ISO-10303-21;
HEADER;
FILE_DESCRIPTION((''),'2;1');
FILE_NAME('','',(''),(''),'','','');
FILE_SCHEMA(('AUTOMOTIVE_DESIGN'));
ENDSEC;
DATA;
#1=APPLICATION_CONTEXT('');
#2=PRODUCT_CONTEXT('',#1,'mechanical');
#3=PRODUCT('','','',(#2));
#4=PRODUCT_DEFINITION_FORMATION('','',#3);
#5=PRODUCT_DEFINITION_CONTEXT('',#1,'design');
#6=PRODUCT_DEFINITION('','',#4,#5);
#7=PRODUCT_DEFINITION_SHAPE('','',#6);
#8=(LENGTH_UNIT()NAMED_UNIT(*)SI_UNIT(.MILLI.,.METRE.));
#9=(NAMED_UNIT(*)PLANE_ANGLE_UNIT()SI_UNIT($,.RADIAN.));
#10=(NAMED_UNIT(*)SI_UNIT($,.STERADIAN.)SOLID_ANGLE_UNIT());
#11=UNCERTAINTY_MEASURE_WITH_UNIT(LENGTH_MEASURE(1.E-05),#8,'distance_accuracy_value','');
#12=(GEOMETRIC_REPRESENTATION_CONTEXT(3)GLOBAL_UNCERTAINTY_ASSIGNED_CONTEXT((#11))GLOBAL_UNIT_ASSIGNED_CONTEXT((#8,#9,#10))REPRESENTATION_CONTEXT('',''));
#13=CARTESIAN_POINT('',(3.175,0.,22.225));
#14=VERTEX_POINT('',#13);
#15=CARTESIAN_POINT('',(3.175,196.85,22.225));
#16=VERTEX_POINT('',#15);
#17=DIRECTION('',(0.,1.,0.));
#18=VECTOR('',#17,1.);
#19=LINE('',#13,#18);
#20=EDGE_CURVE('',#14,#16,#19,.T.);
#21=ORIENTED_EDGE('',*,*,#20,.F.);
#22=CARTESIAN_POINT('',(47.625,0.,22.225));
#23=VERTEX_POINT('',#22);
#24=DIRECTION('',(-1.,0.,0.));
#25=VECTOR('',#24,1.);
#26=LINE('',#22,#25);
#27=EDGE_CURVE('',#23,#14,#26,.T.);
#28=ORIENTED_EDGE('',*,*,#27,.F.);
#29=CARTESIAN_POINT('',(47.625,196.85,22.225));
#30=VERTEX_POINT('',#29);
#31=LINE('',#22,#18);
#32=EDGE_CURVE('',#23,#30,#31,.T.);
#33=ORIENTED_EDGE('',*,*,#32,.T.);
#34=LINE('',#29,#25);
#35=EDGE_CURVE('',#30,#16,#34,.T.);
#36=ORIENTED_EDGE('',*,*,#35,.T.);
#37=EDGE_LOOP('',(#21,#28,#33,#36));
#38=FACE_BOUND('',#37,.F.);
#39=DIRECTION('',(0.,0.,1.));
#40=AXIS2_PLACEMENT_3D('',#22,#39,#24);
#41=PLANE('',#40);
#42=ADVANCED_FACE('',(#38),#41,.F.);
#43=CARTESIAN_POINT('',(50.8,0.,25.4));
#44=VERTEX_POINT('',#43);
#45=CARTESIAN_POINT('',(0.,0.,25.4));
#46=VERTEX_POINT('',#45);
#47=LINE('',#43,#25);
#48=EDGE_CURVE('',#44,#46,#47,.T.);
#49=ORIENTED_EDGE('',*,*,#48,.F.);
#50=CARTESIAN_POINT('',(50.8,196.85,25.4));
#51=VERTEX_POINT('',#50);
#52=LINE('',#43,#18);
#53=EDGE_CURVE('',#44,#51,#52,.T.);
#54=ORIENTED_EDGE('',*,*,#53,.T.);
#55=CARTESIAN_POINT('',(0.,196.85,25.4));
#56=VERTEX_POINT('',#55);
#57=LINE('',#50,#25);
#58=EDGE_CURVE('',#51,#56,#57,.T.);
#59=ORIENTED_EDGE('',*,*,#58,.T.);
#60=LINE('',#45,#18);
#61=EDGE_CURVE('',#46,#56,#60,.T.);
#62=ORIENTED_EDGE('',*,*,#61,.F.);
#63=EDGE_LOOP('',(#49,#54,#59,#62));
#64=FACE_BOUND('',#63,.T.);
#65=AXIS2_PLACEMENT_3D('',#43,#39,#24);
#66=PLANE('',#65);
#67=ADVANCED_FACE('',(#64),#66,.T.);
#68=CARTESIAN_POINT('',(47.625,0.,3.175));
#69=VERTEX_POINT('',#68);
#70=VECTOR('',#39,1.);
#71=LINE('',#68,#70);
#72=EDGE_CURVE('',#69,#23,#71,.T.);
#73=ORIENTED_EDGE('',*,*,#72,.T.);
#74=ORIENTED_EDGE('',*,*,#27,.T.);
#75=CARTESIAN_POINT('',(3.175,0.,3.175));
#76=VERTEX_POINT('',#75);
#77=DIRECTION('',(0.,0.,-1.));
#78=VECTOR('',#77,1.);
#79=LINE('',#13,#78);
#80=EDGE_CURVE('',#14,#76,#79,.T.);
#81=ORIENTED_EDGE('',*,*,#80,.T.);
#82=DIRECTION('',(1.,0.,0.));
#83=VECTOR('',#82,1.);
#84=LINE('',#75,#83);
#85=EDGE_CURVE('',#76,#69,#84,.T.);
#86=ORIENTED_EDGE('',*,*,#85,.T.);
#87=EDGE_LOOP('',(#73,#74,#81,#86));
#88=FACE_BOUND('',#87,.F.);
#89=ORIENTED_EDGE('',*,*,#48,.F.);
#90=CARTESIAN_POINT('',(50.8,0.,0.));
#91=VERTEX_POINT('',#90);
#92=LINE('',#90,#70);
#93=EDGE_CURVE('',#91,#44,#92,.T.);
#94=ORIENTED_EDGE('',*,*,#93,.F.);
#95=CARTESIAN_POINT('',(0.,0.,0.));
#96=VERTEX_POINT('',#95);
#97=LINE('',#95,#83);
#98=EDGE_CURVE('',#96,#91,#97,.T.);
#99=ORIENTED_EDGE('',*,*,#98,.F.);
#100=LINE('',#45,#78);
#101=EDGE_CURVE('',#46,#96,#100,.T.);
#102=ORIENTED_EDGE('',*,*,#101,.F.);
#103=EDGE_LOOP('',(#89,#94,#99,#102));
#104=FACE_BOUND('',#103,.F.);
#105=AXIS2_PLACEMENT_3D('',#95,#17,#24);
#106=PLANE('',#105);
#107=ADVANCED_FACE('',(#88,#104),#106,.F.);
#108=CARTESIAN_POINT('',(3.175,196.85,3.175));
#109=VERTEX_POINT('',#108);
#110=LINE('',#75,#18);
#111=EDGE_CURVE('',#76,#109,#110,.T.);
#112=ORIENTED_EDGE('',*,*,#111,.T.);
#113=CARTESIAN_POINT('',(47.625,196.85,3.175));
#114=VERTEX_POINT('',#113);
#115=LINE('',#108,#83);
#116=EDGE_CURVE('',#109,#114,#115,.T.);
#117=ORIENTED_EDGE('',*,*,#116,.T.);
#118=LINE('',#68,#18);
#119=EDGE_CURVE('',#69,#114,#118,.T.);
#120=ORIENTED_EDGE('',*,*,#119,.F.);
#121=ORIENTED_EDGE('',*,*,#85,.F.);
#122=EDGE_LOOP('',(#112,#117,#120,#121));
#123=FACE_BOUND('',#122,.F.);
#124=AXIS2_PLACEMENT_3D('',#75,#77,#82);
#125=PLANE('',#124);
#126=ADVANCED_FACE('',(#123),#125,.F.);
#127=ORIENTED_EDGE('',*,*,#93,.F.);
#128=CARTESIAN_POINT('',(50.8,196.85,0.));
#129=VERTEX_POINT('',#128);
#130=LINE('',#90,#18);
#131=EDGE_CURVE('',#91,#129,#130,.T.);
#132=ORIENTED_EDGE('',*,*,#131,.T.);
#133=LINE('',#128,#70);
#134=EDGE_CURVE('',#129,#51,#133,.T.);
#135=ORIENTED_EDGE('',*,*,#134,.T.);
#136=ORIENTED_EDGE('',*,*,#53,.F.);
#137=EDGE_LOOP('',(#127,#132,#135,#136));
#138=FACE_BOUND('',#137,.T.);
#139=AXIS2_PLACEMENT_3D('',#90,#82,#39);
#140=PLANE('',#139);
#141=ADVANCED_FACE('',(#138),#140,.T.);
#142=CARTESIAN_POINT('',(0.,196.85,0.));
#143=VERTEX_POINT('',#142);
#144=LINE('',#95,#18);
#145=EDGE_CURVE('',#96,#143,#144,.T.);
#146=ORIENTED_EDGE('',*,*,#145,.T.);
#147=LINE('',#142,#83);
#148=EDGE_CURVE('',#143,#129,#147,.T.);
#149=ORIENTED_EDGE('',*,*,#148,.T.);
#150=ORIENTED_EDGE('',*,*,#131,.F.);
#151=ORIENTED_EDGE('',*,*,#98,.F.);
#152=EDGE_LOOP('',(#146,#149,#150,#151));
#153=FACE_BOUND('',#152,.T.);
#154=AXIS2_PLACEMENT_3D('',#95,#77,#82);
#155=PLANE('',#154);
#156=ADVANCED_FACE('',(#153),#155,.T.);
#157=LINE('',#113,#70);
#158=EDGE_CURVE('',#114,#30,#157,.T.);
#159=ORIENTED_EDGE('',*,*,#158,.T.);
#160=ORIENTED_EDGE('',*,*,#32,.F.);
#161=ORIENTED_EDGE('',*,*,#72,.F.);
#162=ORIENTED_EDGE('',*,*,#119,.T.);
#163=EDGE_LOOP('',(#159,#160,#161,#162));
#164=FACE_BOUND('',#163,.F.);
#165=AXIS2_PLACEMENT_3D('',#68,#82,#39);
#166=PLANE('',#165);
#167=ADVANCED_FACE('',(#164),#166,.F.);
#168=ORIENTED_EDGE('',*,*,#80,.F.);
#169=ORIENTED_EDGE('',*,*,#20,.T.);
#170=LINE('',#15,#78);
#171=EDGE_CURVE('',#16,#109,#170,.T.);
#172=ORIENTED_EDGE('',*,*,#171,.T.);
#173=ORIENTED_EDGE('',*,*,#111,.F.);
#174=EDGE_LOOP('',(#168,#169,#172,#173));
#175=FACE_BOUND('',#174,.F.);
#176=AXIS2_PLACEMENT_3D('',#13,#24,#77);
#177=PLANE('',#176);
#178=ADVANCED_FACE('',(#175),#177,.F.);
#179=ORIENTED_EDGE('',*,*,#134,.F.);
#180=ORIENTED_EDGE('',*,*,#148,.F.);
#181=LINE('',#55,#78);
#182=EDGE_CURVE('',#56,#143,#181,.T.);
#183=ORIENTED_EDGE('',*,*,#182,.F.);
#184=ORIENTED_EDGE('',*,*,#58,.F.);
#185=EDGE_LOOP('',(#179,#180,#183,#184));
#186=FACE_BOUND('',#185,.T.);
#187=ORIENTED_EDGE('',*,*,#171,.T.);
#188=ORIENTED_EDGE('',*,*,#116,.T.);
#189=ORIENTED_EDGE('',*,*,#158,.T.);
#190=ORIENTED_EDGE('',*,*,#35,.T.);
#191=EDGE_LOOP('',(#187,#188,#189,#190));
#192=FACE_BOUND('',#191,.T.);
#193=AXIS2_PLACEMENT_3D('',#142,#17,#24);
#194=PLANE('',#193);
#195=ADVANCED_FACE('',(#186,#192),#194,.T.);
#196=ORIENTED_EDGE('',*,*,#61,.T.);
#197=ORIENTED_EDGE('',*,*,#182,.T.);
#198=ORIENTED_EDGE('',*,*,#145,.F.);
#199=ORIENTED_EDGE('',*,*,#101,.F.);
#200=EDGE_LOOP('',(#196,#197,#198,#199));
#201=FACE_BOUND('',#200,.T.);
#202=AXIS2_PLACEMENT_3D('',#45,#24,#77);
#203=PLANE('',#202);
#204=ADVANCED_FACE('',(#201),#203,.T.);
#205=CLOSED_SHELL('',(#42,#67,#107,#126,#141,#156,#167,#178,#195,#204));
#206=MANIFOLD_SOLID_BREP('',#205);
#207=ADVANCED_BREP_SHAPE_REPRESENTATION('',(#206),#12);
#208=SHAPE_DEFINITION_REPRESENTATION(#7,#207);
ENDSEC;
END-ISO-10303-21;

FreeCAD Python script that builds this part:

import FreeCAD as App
import Part
import Sketcher
Q = App.Units.Quantity


def add_polygon(sketch, points):
    """Adds a closed chain of lines whose ends are joined by coincident constraints."""
    first, n = sketch.GeometryCount, len(points)
    for a, b in zip(points, points[1:] + points[:1]):
        sketch.addGeometry(Part.LineSegment(App.Vector(*a, 0), App.Vector(*b, 0)), False)
    for i in range(n):
        sketch.addConstraint(Sketcher.Constraint("Coincident", first + i, 2, first + (i + 1) % n, 1))

doc = App.newDocument("Part")
body = doc.addObject("PartDesign::Body", "Body")

# Sketch on XZ plane
sketch1 = body.newObject("Sketcher::SketchObject", "Sketch")
sketch1.AttachmentSupport = (doc.getObject("XZ_Plane"), [""])
sketch1.MapMode = "FlatFace"
add_polygon(sketch1, [(51, 0), (0, 0), (0, 25), (51, 25)])  # lines 0-3
add_polygon(sketch1, [(48, 3), (48, 22), (3, 22), (3, 3)])  # lines 4-7
sketch1.addConstraint([
    Sketcher.Constraint("Horizontal", 0),
    Sketcher.Constraint("Vertical", 1),
    Sketcher.Constraint("Horizontal", 2),
    Sketcher.Constraint("Vertical", 3),
    Sketcher.Constraint("Vertical", 4),
    Sketcher.Constraint("Horizontal", 5),
    Sketcher.Constraint("Vertical", 6),
    Sketcher.Constraint("Horizontal", 7),
    Sketcher.Constraint("Coincident", 0, 2, -1, 1),
    Sketcher.Constraint("DistanceX", 0, 2, 0, 1, Q("2 in")),
    Sketcher.Constraint("DistanceY", 1, 1, 1, 2, Q("1 in")),
    Sketcher.Constraint("DistanceX", 5, 2, 5, 1, Q("1.75 in")),
    Sketcher.Constraint("DistanceY", 4, 1, 4, 2, Q("0.75 in")),
    Sketcher.Constraint("DistanceX", -1, 1, 5, 2, Q("0.125 in")),
    Sketcher.Constraint("DistanceY", -1, 1, 6, 2, Q("0.125 in")),
])
pad1 = body.newObject("PartDesign::Pad", "Pad")
pad1.Profile = sketch1
pad1.Length = Q("7.75 in")
pad1.Reversed = True

doc.recompute()
